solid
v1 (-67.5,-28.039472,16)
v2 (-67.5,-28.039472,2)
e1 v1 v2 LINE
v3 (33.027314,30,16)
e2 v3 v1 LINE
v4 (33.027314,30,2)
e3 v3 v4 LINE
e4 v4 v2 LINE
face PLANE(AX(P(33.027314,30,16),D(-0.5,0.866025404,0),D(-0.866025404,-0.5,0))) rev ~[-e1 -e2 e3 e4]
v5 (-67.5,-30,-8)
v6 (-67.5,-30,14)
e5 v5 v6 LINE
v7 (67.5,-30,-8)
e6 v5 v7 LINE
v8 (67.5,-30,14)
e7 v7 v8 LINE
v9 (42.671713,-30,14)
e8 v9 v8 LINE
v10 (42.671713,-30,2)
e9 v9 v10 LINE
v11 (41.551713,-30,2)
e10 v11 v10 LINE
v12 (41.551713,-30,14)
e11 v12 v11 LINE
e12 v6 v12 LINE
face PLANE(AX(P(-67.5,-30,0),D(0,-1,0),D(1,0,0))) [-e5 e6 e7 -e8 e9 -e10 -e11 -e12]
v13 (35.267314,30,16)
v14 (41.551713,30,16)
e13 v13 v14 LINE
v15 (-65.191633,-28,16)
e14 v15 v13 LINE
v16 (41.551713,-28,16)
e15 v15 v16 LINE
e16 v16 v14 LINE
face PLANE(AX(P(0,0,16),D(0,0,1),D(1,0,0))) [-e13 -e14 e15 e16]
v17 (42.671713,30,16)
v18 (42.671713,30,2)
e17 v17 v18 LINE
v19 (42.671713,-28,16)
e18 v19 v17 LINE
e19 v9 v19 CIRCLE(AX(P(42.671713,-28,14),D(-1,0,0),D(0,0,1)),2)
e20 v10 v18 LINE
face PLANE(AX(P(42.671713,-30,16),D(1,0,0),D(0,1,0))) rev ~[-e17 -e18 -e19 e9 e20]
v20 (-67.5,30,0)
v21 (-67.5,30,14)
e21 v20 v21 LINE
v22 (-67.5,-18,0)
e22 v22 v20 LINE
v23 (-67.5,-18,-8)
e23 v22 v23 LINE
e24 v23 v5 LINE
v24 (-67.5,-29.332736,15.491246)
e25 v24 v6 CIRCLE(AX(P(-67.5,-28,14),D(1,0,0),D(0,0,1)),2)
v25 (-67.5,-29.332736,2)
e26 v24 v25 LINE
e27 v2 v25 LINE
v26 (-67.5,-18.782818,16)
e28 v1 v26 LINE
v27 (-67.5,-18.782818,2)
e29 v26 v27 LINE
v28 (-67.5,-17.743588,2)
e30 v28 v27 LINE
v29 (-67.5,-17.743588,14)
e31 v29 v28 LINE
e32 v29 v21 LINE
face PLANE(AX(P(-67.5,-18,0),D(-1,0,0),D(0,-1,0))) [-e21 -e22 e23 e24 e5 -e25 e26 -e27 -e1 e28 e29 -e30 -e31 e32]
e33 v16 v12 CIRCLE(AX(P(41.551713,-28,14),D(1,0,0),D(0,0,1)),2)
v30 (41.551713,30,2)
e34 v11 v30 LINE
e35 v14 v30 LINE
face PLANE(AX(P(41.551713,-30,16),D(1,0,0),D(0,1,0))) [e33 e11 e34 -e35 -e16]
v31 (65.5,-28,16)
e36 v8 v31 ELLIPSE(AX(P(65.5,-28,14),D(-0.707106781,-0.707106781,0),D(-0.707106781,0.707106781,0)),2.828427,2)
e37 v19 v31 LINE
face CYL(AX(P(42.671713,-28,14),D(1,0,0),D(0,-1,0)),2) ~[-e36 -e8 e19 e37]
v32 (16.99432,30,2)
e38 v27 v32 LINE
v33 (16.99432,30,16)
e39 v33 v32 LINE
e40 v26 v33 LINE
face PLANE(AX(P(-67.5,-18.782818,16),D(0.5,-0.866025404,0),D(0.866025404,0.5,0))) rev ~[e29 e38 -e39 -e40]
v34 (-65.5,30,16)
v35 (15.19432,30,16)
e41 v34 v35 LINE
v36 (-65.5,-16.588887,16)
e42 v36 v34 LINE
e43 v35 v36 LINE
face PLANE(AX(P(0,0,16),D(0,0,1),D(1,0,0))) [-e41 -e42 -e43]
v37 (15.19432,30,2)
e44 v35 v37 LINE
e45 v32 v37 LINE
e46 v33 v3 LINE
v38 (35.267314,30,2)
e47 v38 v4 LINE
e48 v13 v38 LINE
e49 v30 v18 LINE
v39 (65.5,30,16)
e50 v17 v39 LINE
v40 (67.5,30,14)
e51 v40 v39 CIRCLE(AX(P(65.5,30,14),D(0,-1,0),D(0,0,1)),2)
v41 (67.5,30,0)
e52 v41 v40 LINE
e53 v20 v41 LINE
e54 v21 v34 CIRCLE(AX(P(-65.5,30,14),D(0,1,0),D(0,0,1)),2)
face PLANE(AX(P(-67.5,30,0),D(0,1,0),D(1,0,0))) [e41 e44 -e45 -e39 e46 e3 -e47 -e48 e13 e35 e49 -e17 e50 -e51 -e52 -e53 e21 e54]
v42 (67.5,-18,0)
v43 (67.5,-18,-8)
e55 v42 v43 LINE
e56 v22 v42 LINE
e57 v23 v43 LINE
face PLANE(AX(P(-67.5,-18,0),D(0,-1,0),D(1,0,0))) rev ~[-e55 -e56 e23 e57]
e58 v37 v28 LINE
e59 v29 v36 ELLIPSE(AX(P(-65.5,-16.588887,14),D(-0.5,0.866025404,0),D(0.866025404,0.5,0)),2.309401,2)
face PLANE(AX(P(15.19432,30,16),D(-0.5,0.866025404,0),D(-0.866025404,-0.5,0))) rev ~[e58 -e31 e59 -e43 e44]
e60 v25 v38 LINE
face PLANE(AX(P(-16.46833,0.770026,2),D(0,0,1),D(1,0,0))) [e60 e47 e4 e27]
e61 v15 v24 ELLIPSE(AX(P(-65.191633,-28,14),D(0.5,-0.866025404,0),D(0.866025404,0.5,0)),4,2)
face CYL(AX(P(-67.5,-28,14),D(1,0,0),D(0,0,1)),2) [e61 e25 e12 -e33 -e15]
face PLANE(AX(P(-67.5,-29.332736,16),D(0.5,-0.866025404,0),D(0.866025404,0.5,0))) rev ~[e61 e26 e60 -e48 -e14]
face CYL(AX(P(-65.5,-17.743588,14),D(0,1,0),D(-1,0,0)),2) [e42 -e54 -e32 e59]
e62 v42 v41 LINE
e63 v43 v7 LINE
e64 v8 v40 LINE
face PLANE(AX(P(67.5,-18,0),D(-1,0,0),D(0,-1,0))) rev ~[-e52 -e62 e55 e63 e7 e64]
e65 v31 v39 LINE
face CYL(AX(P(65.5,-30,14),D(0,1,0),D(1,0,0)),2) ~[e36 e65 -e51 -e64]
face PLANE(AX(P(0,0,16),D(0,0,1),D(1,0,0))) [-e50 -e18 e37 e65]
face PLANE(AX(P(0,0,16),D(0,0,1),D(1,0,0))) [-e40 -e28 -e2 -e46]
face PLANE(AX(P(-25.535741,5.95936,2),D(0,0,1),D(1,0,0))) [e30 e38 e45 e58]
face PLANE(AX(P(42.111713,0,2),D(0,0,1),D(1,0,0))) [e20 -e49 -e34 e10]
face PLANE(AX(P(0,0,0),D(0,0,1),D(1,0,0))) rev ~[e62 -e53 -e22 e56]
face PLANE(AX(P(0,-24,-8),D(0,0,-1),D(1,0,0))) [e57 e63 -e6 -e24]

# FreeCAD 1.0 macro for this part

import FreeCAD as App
import Part
import Sketcher

V = App.Vector
Q = App.Units.Quantity


def edges_at(feature, points):
    """Names of the edges that pass closest to the given points."""
    edges = feature.Shape.Edges
    near = lambda p: min(range(len(edges)), key=lambda i: edges[i].distToShape(Part.Vertex(*p))[0])
    return sorted({f"Edge{near(p) + 1}" for p in points})


def add_polygon(sketch, points):
    """Adds a closed chain of lines whose ends are joined by coincident constraints."""
    first, n = sketch.GeometryCount, len(points)
    for a, b in zip(points, points[1:] + points[:1]):
        sketch.addGeometry(Part.LineSegment(App.Vector(*a, 0), App.Vector(*b, 0)), False)
    for i in range(n):
        sketch.addConstraint(Sketcher.Constraint("Coincident", first + i, 2, first + (i + 1) % n, 1))

doc = App.newDocument("Part")
body = doc.addObject("PartDesign::Body", "Body")

# Sketch on XY plane
sketch1 = doc.addObject("Sketcher::SketchObject", "Sketch")
body.addObject(sketch1)
sketch1.AttachmentSupport = (doc.XY_Plane, [""])
sketch1.MapMode = "FlatFace"
add_polygon(sketch1, [(-68, 30), (-68, -30), (68, -30), (68, 30)])  # lines 0-3
sketch1.addConstraint([
    Sketcher.Constraint("Vertical", 0),
    Sketcher.Constraint("Horizontal", 1),
    Sketcher.Constraint("Vertical", 2),
    Sketcher.Constraint("Horizontal", 3),
    Sketcher.Constraint("Symmetric", 0, 2, 2, 2, -1, 1),
    Sketcher.Constraint("DistanceX", 1, 1, 1, 2, Q("135 mm")),
    Sketcher.Constraint("DistanceY", 0, 2, 0, 1, Q("60 mm")),
])
pad1 = doc.addObject("PartDesign::Pad", "Pad")
body.addObject(pad1)
pad1.Profile = sketch1
pad1.Length = 16

# Sketch on XY plane
sketch2 = doc.addObject("Sketcher::SketchObject", "Sketch001")
body.addObject(sketch2)
sketch2.AttachmentSupport = (doc.XY_Plane, [""])
sketch2.MapMode = "FlatFace"
sketch2.AttachmentOffset = App.Placement(V(0, 0, 16), App.Rotation())
add_polygon(sketch2, [(17, 30), (15.2, 30), (-67.5, -17.7), (-67.5, -18.8)])  # lines 0-3
add_polygon(sketch2, [(35.3, 30), (33, 30), (-67.5, -28), (-67.5, -29.3)])  # lines 4-7
add_polygon(sketch2, [(41.6, 30), (41.6, -30), (42.7, -30), (42.7, 30)])  # lines 8-11
sketch2.addConstraint([
    Sketcher.Constraint("Horizontal", 0),
    Sketcher.Constraint("Vertical", 2),
    Sketcher.Constraint("Horizontal", 4),
    Sketcher.Constraint("Vertical", 6),
    Sketcher.Constraint("Vertical", 8),
    Sketcher.Constraint("Horizontal", 9),
    Sketcher.Constraint("Vertical", 10),
    Sketcher.Constraint("Horizontal", 11),
    Sketcher.Constraint("Parallel", 1, 3),
    Sketcher.Constraint("Parallel", 3, 5),
    Sketcher.Constraint("Parallel", 5, 7),
    Sketcher.Constraint("Horizontal", 3, 2, 4, 2),
    Sketcher.Constraint("Horizontal", 7, 2, 10, 2),
    Sketcher.Constraint("Vertical", 2, 2, 5, 2),
    Sketcher.Constraint("DistanceY", 8, 2, 8, 1, Q("60 mm")),
    Sketcher.Constraint("Angle", 1, Q("-150 deg")),
    Sketcher.Constraint("DistanceX", 0, 2, 0, 1, Q("1.8 mm")),
    Sketcher.Constraint("DistanceY", -1, 1, 0, 2, Q("30 mm")),
    Sketcher.Constraint("DistanceX", 4, 2, 4, 1, Q("2.24 mm")),
    Sketcher.Constraint("DistanceX", 9, 1, 9, 2, Q("1.12 mm")),
    Sketcher.Constraint("DistanceX", 1, 2, -1, 1, Q("67.5 mm")),
    Sketcher.Constraint("DistanceX", 7, 2, 8, 2, Q("6.284399 mm")),
    Sketcher.Constraint("DistanceX", -1, 1, 0, 2, Q("15.19432 mm")),
    Sketcher.Constraint("DistanceY", 5, 2, -1, 1, Q("28.039472 mm")),
])
pocket1 = doc.addObject("PartDesign::Pocket", "Pocket")
body.addObject(pocket1)
pocket1.Profile = sketch2
pocket1.Length = 14
doc.recompute()

fillet = doc.addObject("PartDesign::Fillet", "Fillet")
body.addObject(fillet)
fillet.Base = (pocket1, edges_at(pocket1, [
    (-12.974, -30, 16),
    (-67.5, 6.128, 16),
    (67.5, 0, 16),
    (55.086, -30, 16),
]))
fillet.Radius = 2

# Sketch on XY plane
sketch3 = doc.addObject("Sketcher::SketchObject", "Sketch002")
body.addObject(sketch3)
sketch3.AttachmentSupport = (doc.XY_Plane, [""])
sketch3.MapMode = "FlatFace"
add_polygon(sketch3, [(-68, -30), (-68, -18), (68, -18), (68, -30)])  # lines 0-3
sketch3.addConstraint([
    Sketcher.Constraint("Vertical", 0),
    Sketcher.Constraint("Horizontal", 1),
    Sketcher.Constraint("Vertical", 2),
    Sketcher.Constraint("Horizontal", 3),
    Sketcher.Constraint("DistanceX", 1, 1, 1, 2, Q("135 mm")),
    Sketcher.Constraint("DistanceY", 0, 1, 0, 2, Q("12 mm")),
    Sketcher.Constraint("DistanceY", 0, 2, -1, 1, Q("18 mm")),
    Sketcher.Constraint("DistanceX", 0, 2, -1, 1, Q("67.5 mm")),
])
pad2 = doc.addObject("PartDesign::Pad", "Pad001")
body.addObject(pad2)
pad2.Profile = sketch3
pad2.Length = 8
pad2.Reversed = True

doc.recompute()
